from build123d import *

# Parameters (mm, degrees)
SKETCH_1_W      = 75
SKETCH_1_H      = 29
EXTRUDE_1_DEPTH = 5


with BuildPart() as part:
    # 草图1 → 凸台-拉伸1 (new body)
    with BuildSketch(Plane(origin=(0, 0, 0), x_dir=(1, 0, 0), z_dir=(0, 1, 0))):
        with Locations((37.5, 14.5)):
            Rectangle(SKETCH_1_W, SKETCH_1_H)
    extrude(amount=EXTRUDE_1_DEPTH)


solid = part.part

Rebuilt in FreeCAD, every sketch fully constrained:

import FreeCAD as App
import Part
import Sketcher
from FreeCAD import Vector
Q = App.Units.Quantity

doc = App.newDocument("Part")
params = doc.addObject("Spreadsheet::Sheet", "Params")
for row, (alias, value) in enumerate([
    ("sketch1_width", "75 mm"),
    ("sketch1_height", "29 mm"),
    ("pad1_length", "5 mm"),
], start=1):
    params.set(f"A{row}", alias)
    params.set(f"B{row}", "=" + value)
    params.setAlias(f"B{row}", alias)

body = doc.addObject("PartDesign::Body", "Body")

# Sketch on XZ plane
sketch1 = body.newObject("Sketcher::SketchObject", "Sketch")
sketch1.AttachmentSupport = (doc.getObject("XZ_Plane"), [""])
sketch1.MapMode = "FlatFace"
sketch1.addGeometry(Part.LineSegment(Vector(0, -29, 0), Vector(0, 0, 0)), False)
sketch1.addGeometry(Part.LineSegment(Vector(0, 0, 0), Vector(75, 0, 0)), False)
sketch1.addGeometry(Part.LineSegment(Vector(75, 0, 0), Vector(75, -29, 0)), False)
sketch1.addGeometry(Part.LineSegment(Vector(75, -29, 0), Vector(0, -29, 0)), False)
sketch1.addConstraint(Sketcher.Constraint("Coincident", 0, 2, 1, 1))
sketch1.addConstraint(Sketcher.Constraint("Coincident", 1, 2, 2, 1))
sketch1.addConstraint(Sketcher.Constraint("Coincident", 2, 2, 3, 1))
sketch1.addConstraint(Sketcher.Constraint("Coincident", 3, 2, 0, 1))
sketch1.addConstraint(Sketcher.Constraint("Vertical", 0))
sketch1.addConstraint(Sketcher.Constraint("Horizontal", 1))
sketch1.addConstraint(Sketcher.Constraint("Vertical", 2))
sketch1.addConstraint(Sketcher.Constraint("Horizontal", 3))
sketch1.addConstraint(Sketcher.Constraint("Coincident", 0, 2, -1, 1))
sketch1.addConstraint(Sketcher.Constraint("DistanceX", 1, 1, 1, 2, Q("75 mm")))
sketch1.addConstraint(Sketcher.Constraint("DistanceY", 0, 1, 0, 2, Q("29 mm")))
sketch1.setExpression("Constraints[9]", "Params.sketch1_width")
sketch1.setExpression("Constraints[10]", "Params.sketch1_height")
pad1 = body.newObject("PartDesign::Pad", "Pad")
pad1.Profile = sketch1
pad1.setExpression("Length", "Params.pad1_length")
pad1.Reversed = True

doc.recompute()
